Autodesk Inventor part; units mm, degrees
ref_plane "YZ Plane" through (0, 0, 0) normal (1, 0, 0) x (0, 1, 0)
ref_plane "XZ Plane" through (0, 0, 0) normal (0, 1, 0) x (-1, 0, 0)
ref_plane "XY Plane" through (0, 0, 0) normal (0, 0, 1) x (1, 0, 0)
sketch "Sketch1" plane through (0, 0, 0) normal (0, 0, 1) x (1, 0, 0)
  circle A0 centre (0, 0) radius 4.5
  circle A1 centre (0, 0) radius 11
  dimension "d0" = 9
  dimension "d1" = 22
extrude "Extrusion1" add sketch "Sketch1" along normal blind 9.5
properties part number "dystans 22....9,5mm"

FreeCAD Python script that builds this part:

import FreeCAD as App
import Part
import Sketcher

doc = App.newDocument("Part")
body = doc.addObject("PartDesign::Body", "Body")

sketch1 = body.newObject("Sketcher::SketchObject", "Sketch")
sketch1.AttachmentSupport = (doc.getObject("XY_Plane"), [""])
sketch1.MapMode = "FlatFace"
sketch1.addGeometry([
    Part.Circle(App.Vector(0, 0, 0), App.Vector(0, 0, 1), 11),
    Part.Circle(App.Vector(0, 0, 0), App.Vector(0, 0, 1), 4.5),
], False)
sketch1.addConstraint([
    Sketcher.Constraint("Coincident", 0, 3, -1, 1),
    Sketcher.Constraint("Coincident", 1, 3, -1, 1),
    Sketcher.Constraint("Diameter", 0, 22.0),
    Sketcher.Constraint("Diameter", 1, 9.0),
])
pad1 = body.newObject("PartDesign::Pad", "Pad")
pad1.Profile = sketch1
pad1.Length = 9.5

doc.recompute()
